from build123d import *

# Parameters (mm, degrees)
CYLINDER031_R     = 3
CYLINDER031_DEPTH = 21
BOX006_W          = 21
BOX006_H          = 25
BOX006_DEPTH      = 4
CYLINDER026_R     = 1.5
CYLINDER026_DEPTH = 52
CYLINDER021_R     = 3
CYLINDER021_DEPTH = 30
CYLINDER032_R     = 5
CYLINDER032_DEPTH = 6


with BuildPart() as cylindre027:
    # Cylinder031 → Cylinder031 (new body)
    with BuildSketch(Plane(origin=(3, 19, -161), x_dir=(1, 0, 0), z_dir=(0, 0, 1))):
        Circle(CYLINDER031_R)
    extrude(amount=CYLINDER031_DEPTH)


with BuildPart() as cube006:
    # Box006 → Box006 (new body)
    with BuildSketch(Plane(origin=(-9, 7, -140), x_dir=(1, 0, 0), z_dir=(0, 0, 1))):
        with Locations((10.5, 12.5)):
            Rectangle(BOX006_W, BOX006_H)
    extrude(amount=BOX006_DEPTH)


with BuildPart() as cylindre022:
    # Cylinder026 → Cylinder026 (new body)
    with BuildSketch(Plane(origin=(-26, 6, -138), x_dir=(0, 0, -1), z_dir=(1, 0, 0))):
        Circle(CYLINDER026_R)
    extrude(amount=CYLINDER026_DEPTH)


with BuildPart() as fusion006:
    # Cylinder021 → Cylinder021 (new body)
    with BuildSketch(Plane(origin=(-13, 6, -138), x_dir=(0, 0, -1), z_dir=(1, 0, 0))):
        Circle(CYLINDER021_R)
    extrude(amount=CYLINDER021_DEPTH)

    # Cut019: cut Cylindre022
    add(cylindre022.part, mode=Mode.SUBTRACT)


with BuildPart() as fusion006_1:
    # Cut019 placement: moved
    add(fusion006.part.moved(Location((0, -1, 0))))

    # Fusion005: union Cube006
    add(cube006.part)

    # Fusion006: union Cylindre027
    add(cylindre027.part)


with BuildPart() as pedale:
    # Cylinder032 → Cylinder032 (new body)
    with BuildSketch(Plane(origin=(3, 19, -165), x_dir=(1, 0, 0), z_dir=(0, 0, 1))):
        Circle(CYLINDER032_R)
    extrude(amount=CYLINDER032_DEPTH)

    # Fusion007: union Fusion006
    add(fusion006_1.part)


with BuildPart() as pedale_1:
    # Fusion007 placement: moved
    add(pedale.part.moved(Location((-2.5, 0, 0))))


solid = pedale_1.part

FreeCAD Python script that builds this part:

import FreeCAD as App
import Part
import Sketcher

V = App.Vector
Q = App.Units.Quantity


def add_polygon(sketch, points):
    """Adds a closed chain of lines whose ends are joined by coincident constraints."""
    first, n = sketch.GeometryCount, len(points)
    for a, b in zip(points, points[1:] + points[:1]):
        sketch.addGeometry(Part.LineSegment(App.Vector(*a, 0), App.Vector(*b, 0)), False)
    for i in range(n):
        sketch.addConstraint(Sketcher.Constraint("Coincident", first + i, 2, first + (i + 1) % n, 1))

doc = App.newDocument("Part")
params = doc.addObject("Spreadsheet::Sheet", "Params")
for row, (alias, value) in enumerate([
    ("sketch1_diameter", "6 mm"),
    ("pad1_length", "21 mm"),
    ("sketch2_width", "21 mm"),
    ("sketch2_height", "25 mm"),
    ("pad2_length", "4 mm"),
    ("sketch3_diameter", "3 mm"),
    ("pad3_length", "52 mm"),
    ("sketch4_diameter", "6 mm"),
    ("pad4_length", "30 mm"),
    ("sketch5_diameter", "10 mm"),
    ("pad5_length", "6 mm"),
], start=1):
    params.set(f"A{row}", alias)
    params.set(f"B{row}", "=" + value)
    params.setAlias(f"B{row}", alias)

body = doc.addObject("PartDesign::Body", "Body")

sketch1 = body.newObject("Sketcher::SketchObject", "Sketch")
sketch1.AttachmentSupport = (doc.getObject("XY_Plane"), [""])
sketch1.MapMode = "FlatFace"
sketch1.AttachmentOffset = App.Placement(V(0, 0, -161), App.Rotation())
sketch1.addGeometry(Part.Circle(V(3, 19, 0), V(0, 0, 1), 3), False)
sketch1.addConstraint([
    Sketcher.Constraint("Diameter", 0, Q("6 mm")),
    Sketcher.Constraint("DistanceX", -1, 1, 0, 3, Q("3 mm")),
    Sketcher.Constraint("DistanceY", -1, 1, 0, 3, Q("19 mm")),
])
sketch1.setExpression("Constraints[0]", "Params.sketch1_diameter")
pad1 = body.newObject("PartDesign::Pad", "Pad")
pad1.Profile = sketch1
pad1.setExpression("Length", "Params.pad1_length")
body2 = doc.addObject("PartDesign::Body", "Body001")

sketch2 = body2.newObject("Sketcher::SketchObject", "Sketch001")
sketch2.AttachmentSupport = (doc.getObject("XY_Plane001"), [""])
sketch2.MapMode = "FlatFace"
sketch2.AttachmentOffset = App.Placement(V(0, 0, -140), App.Rotation())
add_polygon(sketch2, [(-9, 32), (-9, 7), (12, 7), (12, 32)])
sketch2.addConstraint([
    Sketcher.Constraint("Vertical", 0),
    Sketcher.Constraint("Horizontal", 1),
    Sketcher.Constraint("Vertical", 2),
    Sketcher.Constraint("Horizontal", 3),
    Sketcher.Constraint("DistanceX", 1, 1, 1, 2, Q("21 mm")),
    Sketcher.Constraint("DistanceY", 0, 2, 0, 1, Q("25 mm")),
    Sketcher.Constraint("DistanceX", 0, 2, -1, 1, Q("9 mm")),
    Sketcher.Constraint("DistanceY", -1, 1, 0, 2, Q("7 mm")),
])
sketch2.setExpression("Constraints[8]", "Params.sketch2_width")
sketch2.setExpression("Constraints[9]", "Params.sketch2_height")
pad2 = body2.newObject("PartDesign::Pad", "Pad001")
pad2.Profile = sketch2
pad2.setExpression("Length", "Params.pad2_length")
body3 = doc.addObject("PartDesign::Body", "Body002")

sketch3 = body3.newObject("Sketcher::SketchObject", "Sketch002")
sketch3.AttachmentSupport = (doc.getObject("YZ_Plane002"), [""])
sketch3.MapMode = "FlatFace"
sketch3.AttachmentOffset = App.Placement(V(0, 0, -26), App.Rotation())
sketch3.addGeometry(Part.Circle(V(6, -138, 0), V(0, 0, 1), 1.5), False)
sketch3.addConstraint([
    Sketcher.Constraint("Diameter", 0, Q("3 mm")),
    Sketcher.Constraint("DistanceX", -1, 1, 0, 3, Q("6 mm")),
    Sketcher.Constraint("DistanceY", 0, 3, -1, 1, Q("138 mm")),
])
sketch3.setExpression("Constraints[0]", "Params.sketch3_diameter")
pad3 = body3.newObject("PartDesign::Pad", "Pad002")
pad3.Profile = sketch3
pad3.setExpression("Length", "Params.pad3_length")
body4 = doc.addObject("PartDesign::Body", "Body003")

sketch4 = body4.newObject("Sketcher::SketchObject", "Sketch003")
sketch4.AttachmentSupport = (doc.getObject("YZ_Plane003"), [""])
sketch4.MapMode = "FlatFace"
sketch4.AttachmentOffset = App.Placement(V(0, 0, -13), App.Rotation())
sketch4.addGeometry(Part.Circle(V(6, -138, 0), V(0, 0, 1), 3), False)
sketch4.addConstraint([
    Sketcher.Constraint("Diameter", 0, Q("6 mm")),
    Sketcher.Constraint("DistanceX", -1, 1, 0, 3, Q("6 mm")),
    Sketcher.Constraint("DistanceY", 0, 3, -1, 1, Q("138 mm")),
])
sketch4.setExpression("Constraints[0]", "Params.sketch4_diameter")
pad4 = body4.newObject("PartDesign::Pad", "Pad003")
pad4.Profile = sketch4
pad4.setExpression("Length", "Params.pad4_length")
doc.recompute()

boolean = body4.newObject("PartDesign::Boolean", "Boolean")
boolean.Type = "Cut"
boolean.addObjects([body3])
body5 = doc.addObject("PartDesign::Body", "Body004")
doc.recompute()

body4.Placement = App.Placement(V(0, -1, 0), App.Rotation(V(0, 0, 1), 0))
boolean2 = body5.newObject("PartDesign::Boolean", "Boolean001")
boolean2.Type = "Fuse"
boolean2.addObjects([body4])
doc.recompute()

boolean3 = body5.newObject("PartDesign::Boolean", "Boolean002")
boolean3.Type = "Fuse"
boolean3.addObjects([body2])
doc.recompute()

boolean4 = body5.newObject("PartDesign::Boolean", "Boolean003")
boolean4.Type = "Fuse"
boolean4.addObjects([body])
body6 = doc.addObject("PartDesign::Body", "Body005")

sketch5 = body6.newObject("Sketcher::SketchObject", "Sketch004")
sketch5.AttachmentSupport = (doc.getObject("XY_Plane005"), [""])
sketch5.MapMode = "FlatFace"
sketch5.AttachmentOffset = App.Placement(V(0, 0, -165), App.Rotation())
sketch5.addGeometry(Part.Circle(V(3, 19, 0), V(0, 0, 1), 5), False)
sketch5.addConstraint([
    Sketcher.Constraint("Diameter", 0, Q("10 mm")),
    Sketcher.Constraint("DistanceX", -1, 1, 0, 3, Q("3 mm")),
    Sketcher.Constraint("DistanceY", -1, 1, 0, 3, Q("19 mm")),
])
sketch5.setExpression("Constraints[0]", "Params.sketch5_diameter")
pad5 = body6.newObject("PartDesign::Pad", "Pad004")
pad5.Profile = sketch5
pad5.setExpression("Length", "Params.pad5_length")
doc.recompute()

boolean5 = body6.newObject("PartDesign::Boolean", "Boolean004")
boolean5.Type = "Fuse"
boolean5.addObjects([body5])
body7 = doc.addObject("PartDesign::Body", "Body006")
doc.recompute()

body6.Placement = App.Placement(V(-2.5, 0, 0), App.Rotation(V(0, 0, 1), 0))
boolean6 = body7.newObject("PartDesign::Boolean", "Boolean005")
boolean6.Type = "Fuse"
boolean6.addObjects([body6])

doc.recompute()
